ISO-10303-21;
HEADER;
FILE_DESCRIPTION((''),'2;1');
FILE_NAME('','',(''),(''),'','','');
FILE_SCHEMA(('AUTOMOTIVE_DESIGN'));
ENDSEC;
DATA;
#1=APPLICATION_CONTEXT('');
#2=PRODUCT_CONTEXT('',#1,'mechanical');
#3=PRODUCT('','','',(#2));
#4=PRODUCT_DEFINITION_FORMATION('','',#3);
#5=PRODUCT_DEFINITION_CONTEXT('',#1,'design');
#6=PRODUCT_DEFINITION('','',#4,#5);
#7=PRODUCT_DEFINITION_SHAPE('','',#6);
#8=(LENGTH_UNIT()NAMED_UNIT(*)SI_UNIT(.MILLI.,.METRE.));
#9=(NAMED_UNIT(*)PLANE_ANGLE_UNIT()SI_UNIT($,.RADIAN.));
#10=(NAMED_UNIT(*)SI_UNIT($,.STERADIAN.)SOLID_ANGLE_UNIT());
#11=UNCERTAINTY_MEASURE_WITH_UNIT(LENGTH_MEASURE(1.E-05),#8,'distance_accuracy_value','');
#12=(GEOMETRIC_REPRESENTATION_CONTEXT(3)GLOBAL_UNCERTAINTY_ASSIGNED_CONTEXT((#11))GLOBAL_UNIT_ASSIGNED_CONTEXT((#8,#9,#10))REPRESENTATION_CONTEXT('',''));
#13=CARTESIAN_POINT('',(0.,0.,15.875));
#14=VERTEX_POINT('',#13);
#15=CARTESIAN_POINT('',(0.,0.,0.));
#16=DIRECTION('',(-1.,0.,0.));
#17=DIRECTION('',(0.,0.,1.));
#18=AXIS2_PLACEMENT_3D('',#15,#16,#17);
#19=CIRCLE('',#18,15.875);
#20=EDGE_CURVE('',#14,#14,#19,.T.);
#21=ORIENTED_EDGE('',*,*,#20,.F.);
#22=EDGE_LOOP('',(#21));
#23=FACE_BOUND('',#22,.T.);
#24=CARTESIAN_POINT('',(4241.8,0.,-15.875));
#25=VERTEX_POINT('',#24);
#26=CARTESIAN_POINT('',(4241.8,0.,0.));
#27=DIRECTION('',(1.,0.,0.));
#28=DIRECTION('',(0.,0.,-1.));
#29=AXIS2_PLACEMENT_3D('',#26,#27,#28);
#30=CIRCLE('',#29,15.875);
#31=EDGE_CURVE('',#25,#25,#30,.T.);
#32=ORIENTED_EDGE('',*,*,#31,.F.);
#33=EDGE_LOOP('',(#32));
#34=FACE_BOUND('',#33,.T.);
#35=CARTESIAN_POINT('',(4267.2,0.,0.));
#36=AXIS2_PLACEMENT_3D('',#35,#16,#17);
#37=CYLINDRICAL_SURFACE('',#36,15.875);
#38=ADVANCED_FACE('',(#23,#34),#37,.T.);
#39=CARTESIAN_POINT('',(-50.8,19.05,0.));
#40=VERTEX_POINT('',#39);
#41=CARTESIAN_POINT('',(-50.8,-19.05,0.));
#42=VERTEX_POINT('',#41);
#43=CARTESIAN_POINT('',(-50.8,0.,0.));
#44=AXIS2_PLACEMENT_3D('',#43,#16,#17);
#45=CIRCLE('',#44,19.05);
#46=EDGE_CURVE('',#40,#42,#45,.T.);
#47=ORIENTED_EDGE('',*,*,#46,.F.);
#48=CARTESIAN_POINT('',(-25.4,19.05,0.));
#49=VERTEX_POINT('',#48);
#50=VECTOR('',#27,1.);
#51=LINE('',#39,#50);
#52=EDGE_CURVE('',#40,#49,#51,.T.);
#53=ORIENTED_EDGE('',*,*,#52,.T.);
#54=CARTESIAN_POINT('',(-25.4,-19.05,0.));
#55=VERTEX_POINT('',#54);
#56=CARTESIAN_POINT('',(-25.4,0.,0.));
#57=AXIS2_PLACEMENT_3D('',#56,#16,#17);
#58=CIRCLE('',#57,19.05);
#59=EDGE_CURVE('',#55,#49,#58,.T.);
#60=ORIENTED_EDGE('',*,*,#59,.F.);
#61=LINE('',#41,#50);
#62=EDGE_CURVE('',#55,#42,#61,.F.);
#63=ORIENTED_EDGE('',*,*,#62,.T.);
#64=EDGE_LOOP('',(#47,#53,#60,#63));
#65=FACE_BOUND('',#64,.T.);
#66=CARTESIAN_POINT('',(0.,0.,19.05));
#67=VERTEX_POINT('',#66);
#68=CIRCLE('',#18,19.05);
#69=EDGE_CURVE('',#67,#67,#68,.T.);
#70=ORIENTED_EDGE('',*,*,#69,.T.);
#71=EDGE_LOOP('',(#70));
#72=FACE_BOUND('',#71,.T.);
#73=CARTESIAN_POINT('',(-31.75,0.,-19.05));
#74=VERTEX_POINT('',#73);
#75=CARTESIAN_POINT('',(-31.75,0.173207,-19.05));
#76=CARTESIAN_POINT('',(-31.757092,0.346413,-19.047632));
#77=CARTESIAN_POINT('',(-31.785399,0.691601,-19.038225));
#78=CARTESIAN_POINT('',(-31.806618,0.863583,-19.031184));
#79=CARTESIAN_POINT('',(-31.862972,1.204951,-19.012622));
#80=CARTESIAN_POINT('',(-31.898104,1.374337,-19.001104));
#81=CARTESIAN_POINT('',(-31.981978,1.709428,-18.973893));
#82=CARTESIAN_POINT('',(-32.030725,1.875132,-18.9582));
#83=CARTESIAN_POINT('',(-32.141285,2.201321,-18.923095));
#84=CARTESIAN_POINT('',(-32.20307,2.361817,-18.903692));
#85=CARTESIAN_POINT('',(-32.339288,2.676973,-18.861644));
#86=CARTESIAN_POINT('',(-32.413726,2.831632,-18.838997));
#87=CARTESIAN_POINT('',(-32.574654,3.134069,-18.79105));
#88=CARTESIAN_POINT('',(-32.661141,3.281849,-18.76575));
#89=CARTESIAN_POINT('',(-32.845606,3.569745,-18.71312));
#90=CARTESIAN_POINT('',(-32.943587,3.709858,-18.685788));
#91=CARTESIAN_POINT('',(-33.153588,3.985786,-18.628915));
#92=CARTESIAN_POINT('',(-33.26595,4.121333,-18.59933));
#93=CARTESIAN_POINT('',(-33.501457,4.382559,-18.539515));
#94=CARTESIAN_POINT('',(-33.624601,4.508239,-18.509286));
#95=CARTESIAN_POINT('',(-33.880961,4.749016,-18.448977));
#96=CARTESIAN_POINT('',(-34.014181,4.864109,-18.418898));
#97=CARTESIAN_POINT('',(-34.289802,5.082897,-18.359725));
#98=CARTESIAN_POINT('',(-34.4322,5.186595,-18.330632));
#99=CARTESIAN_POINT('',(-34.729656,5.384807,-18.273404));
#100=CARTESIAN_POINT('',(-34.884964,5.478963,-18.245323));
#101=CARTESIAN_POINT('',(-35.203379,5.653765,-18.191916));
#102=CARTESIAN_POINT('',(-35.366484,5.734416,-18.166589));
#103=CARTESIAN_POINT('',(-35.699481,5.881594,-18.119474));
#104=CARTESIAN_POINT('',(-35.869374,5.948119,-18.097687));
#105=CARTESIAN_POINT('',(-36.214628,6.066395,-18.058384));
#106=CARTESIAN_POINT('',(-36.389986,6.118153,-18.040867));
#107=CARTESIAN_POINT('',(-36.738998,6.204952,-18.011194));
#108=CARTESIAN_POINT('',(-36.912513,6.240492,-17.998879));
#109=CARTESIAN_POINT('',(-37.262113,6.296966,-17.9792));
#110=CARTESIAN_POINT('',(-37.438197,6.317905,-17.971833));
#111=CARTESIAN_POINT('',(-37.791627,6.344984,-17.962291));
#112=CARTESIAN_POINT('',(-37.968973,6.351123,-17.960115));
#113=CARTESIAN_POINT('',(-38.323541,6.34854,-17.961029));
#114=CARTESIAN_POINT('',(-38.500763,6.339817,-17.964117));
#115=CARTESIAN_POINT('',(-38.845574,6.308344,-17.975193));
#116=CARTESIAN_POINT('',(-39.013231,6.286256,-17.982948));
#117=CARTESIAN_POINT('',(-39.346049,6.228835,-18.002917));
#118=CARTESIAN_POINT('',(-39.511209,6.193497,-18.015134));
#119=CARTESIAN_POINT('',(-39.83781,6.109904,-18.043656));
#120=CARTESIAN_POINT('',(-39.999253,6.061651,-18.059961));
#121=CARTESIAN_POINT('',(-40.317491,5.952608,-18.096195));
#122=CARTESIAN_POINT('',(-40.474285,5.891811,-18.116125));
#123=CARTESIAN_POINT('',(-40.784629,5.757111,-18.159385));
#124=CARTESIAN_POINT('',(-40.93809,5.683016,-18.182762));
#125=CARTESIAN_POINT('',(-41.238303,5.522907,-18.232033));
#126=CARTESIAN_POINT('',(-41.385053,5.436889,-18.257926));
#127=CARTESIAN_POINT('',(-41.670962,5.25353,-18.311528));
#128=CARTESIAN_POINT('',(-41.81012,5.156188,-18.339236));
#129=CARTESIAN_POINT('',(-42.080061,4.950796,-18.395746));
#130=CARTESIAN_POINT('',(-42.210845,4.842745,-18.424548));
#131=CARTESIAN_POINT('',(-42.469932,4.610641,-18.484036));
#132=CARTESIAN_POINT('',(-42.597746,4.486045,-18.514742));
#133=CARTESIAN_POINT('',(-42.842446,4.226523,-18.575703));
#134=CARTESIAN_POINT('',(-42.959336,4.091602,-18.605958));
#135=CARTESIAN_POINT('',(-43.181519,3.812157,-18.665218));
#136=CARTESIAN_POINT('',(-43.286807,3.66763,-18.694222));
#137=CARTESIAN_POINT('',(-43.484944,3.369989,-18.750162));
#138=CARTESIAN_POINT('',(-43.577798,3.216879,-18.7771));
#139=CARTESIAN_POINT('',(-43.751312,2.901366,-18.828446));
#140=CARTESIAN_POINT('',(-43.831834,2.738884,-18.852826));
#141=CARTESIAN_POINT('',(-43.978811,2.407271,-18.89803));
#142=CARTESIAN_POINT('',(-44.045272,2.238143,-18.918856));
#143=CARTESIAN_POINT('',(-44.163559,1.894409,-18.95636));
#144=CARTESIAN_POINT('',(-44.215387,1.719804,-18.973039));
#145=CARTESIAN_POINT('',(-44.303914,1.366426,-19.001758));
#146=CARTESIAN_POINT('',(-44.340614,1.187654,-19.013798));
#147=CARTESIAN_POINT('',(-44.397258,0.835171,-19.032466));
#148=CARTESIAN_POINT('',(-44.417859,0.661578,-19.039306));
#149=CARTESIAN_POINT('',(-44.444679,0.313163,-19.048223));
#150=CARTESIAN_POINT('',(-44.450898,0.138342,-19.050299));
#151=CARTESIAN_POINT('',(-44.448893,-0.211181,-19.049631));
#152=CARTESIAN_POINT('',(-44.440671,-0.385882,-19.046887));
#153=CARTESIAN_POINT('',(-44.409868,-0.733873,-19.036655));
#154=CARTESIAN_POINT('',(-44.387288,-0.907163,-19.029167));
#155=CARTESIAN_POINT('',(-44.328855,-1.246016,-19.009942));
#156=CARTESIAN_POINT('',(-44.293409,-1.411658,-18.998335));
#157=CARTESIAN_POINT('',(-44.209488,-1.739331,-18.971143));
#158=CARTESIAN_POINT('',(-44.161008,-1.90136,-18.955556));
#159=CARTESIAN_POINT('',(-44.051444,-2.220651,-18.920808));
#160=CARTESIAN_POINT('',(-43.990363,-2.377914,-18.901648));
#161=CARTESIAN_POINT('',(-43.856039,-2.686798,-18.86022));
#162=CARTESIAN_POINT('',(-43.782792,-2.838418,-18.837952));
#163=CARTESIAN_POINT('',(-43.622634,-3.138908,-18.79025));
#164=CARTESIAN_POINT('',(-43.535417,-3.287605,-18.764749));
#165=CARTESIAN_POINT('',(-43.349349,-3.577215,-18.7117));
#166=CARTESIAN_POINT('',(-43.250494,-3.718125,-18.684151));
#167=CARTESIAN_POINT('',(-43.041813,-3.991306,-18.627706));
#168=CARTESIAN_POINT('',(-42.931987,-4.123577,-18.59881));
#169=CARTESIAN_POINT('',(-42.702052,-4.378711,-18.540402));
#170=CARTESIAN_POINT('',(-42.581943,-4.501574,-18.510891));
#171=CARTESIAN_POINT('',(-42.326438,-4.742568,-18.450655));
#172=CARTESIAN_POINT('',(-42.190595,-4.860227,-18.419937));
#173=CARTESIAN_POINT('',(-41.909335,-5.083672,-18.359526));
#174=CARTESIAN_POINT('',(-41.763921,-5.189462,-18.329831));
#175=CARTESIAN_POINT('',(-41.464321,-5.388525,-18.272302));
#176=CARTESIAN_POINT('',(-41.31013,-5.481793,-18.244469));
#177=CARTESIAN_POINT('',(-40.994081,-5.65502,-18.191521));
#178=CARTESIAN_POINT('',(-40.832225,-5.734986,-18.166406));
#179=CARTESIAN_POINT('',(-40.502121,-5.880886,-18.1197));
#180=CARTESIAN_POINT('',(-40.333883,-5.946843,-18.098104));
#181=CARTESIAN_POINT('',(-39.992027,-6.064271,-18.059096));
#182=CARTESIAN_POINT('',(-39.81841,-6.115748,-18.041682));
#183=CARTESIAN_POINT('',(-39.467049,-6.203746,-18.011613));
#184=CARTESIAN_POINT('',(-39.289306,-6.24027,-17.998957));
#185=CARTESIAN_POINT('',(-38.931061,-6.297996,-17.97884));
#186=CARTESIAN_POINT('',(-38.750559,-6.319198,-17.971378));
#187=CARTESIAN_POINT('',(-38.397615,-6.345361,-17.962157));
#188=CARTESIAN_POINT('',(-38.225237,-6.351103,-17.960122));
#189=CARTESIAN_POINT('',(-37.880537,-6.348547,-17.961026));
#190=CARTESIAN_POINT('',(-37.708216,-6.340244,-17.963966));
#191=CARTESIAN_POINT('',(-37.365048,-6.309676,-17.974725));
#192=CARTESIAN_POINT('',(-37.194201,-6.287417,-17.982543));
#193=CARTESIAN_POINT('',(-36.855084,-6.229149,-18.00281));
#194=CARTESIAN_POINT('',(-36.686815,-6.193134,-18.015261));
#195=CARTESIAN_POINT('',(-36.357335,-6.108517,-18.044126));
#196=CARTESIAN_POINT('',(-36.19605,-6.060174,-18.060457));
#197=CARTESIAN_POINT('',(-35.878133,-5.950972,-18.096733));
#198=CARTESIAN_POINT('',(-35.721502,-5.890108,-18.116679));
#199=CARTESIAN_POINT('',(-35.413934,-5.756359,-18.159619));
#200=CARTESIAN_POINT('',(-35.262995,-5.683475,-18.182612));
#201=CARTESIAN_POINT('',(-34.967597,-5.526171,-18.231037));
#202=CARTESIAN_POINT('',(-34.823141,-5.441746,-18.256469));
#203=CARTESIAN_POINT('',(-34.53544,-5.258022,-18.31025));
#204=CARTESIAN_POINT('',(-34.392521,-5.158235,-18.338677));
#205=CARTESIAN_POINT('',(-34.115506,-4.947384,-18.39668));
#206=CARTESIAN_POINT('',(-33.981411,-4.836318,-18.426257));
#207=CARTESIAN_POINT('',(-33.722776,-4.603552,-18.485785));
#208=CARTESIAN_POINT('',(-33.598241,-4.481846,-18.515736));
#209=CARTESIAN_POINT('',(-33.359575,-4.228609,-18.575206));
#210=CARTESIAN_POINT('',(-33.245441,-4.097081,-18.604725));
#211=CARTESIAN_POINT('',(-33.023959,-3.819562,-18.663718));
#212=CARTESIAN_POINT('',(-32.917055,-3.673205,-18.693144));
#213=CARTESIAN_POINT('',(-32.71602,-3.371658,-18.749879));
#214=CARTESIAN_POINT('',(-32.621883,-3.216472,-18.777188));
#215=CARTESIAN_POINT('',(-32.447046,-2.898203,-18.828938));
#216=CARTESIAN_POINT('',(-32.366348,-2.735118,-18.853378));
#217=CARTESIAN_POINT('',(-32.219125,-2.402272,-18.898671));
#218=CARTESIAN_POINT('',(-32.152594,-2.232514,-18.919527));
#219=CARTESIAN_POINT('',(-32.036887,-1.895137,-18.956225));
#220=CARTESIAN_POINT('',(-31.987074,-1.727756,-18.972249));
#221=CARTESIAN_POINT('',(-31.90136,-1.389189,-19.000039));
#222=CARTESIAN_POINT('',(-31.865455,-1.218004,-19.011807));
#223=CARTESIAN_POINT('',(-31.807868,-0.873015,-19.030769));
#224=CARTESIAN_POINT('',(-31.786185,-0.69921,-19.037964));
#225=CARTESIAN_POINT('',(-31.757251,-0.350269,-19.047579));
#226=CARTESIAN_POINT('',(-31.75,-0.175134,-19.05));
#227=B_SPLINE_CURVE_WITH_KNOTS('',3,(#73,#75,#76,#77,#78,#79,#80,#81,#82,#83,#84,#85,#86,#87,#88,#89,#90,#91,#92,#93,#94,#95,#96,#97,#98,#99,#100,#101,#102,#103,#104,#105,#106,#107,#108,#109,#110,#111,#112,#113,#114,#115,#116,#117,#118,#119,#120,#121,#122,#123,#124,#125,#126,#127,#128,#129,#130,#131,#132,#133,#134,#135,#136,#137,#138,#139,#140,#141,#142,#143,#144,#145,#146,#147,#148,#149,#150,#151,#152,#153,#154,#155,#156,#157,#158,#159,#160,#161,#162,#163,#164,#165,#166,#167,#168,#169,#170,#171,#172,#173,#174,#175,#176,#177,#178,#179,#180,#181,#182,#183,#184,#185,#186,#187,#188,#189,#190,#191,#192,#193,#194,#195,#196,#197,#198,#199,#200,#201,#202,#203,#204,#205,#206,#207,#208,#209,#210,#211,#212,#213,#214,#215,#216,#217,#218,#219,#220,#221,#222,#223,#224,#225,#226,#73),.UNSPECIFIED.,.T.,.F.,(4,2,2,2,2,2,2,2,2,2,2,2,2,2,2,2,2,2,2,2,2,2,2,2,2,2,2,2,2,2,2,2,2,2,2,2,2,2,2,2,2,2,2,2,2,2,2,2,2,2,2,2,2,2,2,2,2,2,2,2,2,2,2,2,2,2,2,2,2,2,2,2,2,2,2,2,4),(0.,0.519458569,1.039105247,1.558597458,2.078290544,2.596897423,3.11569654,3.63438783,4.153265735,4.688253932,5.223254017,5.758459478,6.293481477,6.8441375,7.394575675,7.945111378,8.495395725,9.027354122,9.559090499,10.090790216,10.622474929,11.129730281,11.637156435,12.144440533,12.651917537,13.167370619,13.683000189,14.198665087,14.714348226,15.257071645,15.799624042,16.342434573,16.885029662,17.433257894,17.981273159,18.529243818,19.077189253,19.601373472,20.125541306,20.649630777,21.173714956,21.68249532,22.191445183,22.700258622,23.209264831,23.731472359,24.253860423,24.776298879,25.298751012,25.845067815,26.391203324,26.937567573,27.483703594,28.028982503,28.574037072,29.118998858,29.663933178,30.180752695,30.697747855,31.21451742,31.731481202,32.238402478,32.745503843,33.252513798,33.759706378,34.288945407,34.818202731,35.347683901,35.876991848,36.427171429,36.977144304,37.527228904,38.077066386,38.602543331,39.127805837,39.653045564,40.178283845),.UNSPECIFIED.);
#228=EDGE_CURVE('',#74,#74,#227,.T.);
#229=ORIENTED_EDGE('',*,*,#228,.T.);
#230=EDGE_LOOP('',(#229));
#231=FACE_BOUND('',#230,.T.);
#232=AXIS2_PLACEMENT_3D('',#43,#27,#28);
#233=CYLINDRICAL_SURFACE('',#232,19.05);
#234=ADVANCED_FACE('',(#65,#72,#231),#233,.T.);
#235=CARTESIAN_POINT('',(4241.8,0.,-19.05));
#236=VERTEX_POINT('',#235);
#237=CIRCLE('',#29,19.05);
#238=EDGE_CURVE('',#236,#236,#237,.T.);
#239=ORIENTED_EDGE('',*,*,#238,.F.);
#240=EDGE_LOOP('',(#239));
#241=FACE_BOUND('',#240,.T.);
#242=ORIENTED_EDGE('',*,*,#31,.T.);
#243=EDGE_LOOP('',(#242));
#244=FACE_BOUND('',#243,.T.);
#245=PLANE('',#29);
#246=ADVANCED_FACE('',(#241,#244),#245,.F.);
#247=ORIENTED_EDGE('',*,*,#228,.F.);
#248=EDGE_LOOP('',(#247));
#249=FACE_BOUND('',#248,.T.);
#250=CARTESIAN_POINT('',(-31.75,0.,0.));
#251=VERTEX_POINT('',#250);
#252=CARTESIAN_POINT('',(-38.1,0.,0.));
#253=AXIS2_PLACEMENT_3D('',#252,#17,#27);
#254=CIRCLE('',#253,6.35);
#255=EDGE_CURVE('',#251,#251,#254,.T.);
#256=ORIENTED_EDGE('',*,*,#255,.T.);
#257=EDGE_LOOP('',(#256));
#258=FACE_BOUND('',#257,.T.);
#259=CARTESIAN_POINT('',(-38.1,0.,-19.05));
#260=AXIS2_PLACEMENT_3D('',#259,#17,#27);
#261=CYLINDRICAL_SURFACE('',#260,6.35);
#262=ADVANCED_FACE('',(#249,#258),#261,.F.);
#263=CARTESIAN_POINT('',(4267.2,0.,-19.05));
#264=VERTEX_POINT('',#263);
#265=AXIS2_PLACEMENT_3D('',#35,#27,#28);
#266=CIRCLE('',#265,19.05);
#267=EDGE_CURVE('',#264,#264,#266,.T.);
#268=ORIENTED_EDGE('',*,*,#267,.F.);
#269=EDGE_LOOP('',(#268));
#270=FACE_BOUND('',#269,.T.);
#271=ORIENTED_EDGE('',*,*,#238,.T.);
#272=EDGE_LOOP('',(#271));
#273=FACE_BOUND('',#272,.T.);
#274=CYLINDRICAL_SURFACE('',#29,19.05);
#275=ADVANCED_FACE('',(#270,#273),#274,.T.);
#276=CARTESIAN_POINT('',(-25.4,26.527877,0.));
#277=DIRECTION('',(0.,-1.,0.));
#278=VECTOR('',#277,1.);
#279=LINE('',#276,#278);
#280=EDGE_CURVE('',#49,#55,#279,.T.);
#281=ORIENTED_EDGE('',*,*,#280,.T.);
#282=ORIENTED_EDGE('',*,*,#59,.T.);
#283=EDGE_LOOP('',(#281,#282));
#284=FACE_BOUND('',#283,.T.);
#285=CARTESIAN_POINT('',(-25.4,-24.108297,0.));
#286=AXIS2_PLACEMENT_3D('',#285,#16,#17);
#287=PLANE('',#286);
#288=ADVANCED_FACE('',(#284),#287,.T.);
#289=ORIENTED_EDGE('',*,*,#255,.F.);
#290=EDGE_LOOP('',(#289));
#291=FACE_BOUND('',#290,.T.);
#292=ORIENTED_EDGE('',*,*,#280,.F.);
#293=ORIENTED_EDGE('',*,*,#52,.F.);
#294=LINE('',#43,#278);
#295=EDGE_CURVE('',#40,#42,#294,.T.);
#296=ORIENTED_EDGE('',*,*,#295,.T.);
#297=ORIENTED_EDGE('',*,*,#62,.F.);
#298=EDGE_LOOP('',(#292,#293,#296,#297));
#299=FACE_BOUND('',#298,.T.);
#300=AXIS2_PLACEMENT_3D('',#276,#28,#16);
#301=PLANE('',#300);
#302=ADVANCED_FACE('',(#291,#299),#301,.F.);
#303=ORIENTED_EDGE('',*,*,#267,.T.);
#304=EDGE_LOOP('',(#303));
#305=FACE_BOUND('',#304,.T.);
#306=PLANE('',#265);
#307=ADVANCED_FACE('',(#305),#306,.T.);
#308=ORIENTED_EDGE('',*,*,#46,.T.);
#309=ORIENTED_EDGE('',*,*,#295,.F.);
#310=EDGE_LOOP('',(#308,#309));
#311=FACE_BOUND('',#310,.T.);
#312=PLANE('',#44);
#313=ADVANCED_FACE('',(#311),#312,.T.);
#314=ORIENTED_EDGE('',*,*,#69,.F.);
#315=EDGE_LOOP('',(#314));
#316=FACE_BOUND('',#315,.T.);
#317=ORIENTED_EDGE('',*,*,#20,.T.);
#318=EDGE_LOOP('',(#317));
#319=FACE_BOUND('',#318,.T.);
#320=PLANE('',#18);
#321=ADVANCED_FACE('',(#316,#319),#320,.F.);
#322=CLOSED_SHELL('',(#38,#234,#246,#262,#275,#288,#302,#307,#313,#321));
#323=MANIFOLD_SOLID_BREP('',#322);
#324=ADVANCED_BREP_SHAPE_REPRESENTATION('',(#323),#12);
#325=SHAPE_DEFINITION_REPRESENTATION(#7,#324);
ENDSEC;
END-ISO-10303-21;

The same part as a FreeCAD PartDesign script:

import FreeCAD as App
import Part
import Sketcher
Q = App.Units.Quantity

doc = App.newDocument("Part")
params = doc.addObject("Spreadsheet::Sheet", "Params")
for row, (alias, value) in enumerate([
    ("sketch1_diameter", "1.25 in"),
    ("pad1_length", "168 in"),
    ("sketch2_diameter", "1.5 in"),
    ("pad2_length", "1 in"),
    ("sketch3_diameter", "1.5 in"),
    ("pad3_length", "2 in"),
    ("pocket1_length", "1 in"),
    ("sketch5_diameter", "0.5 in"),
], start=1):
    params.set(f"A{row}", alias)
    params.set(f"B{row}", "=" + value)
    params.setAlias(f"B{row}", alias)

body = doc.addObject("PartDesign::Body", "Body")

sketch1 = doc.addObject("Sketcher::SketchObject", "Sketch")
body.addObject(sketch1)
sketch1.AttachmentSupport = (doc.YZ_Plane, [""])
sketch1.MapMode = "FlatFace"
sketch1.addGeometry(Part.Circle(App.Vector(0, 0, 0), App.Vector(0, 0, 1), 15.875), False)
sketch1.addConstraint([
    Sketcher.Constraint("Coincident", 0, 3, -1, 1),
    Sketcher.Constraint("Diameter", 0, Q("1.25 in")),
])
sketch1.setExpression("Constraints[1]", "Params.sketch1_diameter")
pad1 = doc.addObject("PartDesign::Pad", "Pad")
body.addObject(pad1)
pad1.Profile = sketch1
pad1.setExpression("Length", "Params.pad1_length")

sketch2 = doc.addObject("Sketcher::SketchObject", "Sketch001")
body.addObject(sketch2)
sketch2.AttachmentSupport = (doc.YZ_Plane, [""])
sketch2.MapMode = "FlatFace"
sketch2.AttachmentOffset = App.Placement(App.Vector(0, 0, 168 * 25.4), App.Rotation())
sketch2.addGeometry(Part.Circle(App.Vector(0, 0, 0), App.Vector(0, 0, 1), 19.05), False)
sketch2.addConstraint([
    Sketcher.Constraint("Coincident", 0, 3, -1, 1),
    Sketcher.Constraint("Diameter", 0, Q("1.5 in")),
])
sketch2.setExpression("Constraints[1]", "Params.sketch2_diameter")
pad2 = doc.addObject("PartDesign::Pad", "Pad001")
body.addObject(pad2)
pad2.Profile = sketch2
pad2.setExpression("Length", "Params.pad2_length")
pad2.Reversed = True

sketch3 = doc.addObject("Sketcher::SketchObject", "Sketch002")
body.addObject(sketch3)
sketch3.AttachmentSupport = (doc.YZ_Plane, [""])
sketch3.MapMode = "FlatFace"
sketch3.addGeometry(Part.Circle(App.Vector(0, 0, 0), App.Vector(0, 0, 1), 19.05), False)
sketch3.addConstraint([
    Sketcher.Constraint("Coincident", 0, 3, -1, 1),
    Sketcher.Constraint("Diameter", 0, Q("1.5 in")),
])
sketch3.setExpression("Constraints[1]", "Params.sketch3_diameter")
pad3 = doc.addObject("PartDesign::Pad", "Pad002")
body.addObject(pad3)
pad3.Profile = sketch3
pad3.setExpression("Length", "Params.pad3_length")
pad3.Reversed = True

sketch4 = doc.addObject("Sketcher::SketchObject", "Sketch003")
body.addObject(sketch4)
sketch4.AttachmentSupport = (doc.YZ_Plane, [""])
sketch4.MapMode = "FlatFace"
sketch4.AttachmentOffset = App.Placement(App.Vector(0, 0, -2 * 25.4), App.Rotation())
sketch4.addGeometry([
    Part.LineSegment(App.Vector(26.527877, 0, 0), App.Vector(-24.108297, 0, 0)),
    Part.LineSegment(App.Vector(-24.108297, 0, 0), App.Vector(-24.108297, 29.097438, 0)),
    Part.LineSegment(App.Vector(-24.108297, 29.097438, 0), App.Vector(26.527877, 29.097438, 0)),
    Part.LineSegment(App.Vector(26.527877, 29.097438, 0), App.Vector(26.527877, 0, 0)),
], False)
sketch4.addConstraint([
    Sketcher.Constraint("Coincident", 0, 2, 1, 1),
    Sketcher.Constraint("Coincident", 1, 2, 2, 1),
    Sketcher.Constraint("Coincident", 2, 2, 3, 1),
    Sketcher.Constraint("Coincident", 3, 2, 0, 1),
    Sketcher.Constraint("Horizontal", 0),
    Sketcher.Constraint("Vertical", 1),
    Sketcher.Constraint("Horizontal", 2),
    Sketcher.Constraint("Vertical", 3),
    Sketcher.Constraint("PointOnObject", 0, 2, -1),
    Sketcher.Constraint("DistanceY", 1, 1, 1, 2, 29.097438),
    Sketcher.Constraint("DistanceX", 0, 2, 0, 1, 50.636174),
    Sketcher.Constraint("DistanceX", 0, 2, -1, 1, 24.108297),
])
pocket1 = doc.addObject("PartDesign::Pocket", "Pocket")
body.addObject(pocket1)
pocket1.Profile = sketch4
pocket1.setExpression("Length", "Params.pocket1_length")
pocket1.Reversed = True

sketch5 = doc.addObject("Sketcher::SketchObject", "Sketch004")
body.addObject(sketch5)
sketch5.AttachmentSupport = (doc.XY_Plane, [""])
sketch5.MapMode = "FlatFace"
sketch5.addGeometry(Part.Circle(App.Vector(-38.1, 0, 0), App.Vector(0, 0, 1), 6.35), False)
sketch5.addConstraint([
    Sketcher.Constraint("PointOnObject", 0, 3, -1),
    Sketcher.Constraint("Diameter", 0, Q("0.5 in")),
    Sketcher.Constraint("DistanceX", 0, 3, -1, 1, Q("1.5 in")),
])
sketch5.setExpression("Constraints[1]", "Params.sketch5_diameter")
pocket2 = doc.addObject("PartDesign::Pocket", "Pocket001")
body.addObject(pocket2)
pocket2.Profile = sketch5
pocket2.Type = "ThroughAll"

doc.recompute()
